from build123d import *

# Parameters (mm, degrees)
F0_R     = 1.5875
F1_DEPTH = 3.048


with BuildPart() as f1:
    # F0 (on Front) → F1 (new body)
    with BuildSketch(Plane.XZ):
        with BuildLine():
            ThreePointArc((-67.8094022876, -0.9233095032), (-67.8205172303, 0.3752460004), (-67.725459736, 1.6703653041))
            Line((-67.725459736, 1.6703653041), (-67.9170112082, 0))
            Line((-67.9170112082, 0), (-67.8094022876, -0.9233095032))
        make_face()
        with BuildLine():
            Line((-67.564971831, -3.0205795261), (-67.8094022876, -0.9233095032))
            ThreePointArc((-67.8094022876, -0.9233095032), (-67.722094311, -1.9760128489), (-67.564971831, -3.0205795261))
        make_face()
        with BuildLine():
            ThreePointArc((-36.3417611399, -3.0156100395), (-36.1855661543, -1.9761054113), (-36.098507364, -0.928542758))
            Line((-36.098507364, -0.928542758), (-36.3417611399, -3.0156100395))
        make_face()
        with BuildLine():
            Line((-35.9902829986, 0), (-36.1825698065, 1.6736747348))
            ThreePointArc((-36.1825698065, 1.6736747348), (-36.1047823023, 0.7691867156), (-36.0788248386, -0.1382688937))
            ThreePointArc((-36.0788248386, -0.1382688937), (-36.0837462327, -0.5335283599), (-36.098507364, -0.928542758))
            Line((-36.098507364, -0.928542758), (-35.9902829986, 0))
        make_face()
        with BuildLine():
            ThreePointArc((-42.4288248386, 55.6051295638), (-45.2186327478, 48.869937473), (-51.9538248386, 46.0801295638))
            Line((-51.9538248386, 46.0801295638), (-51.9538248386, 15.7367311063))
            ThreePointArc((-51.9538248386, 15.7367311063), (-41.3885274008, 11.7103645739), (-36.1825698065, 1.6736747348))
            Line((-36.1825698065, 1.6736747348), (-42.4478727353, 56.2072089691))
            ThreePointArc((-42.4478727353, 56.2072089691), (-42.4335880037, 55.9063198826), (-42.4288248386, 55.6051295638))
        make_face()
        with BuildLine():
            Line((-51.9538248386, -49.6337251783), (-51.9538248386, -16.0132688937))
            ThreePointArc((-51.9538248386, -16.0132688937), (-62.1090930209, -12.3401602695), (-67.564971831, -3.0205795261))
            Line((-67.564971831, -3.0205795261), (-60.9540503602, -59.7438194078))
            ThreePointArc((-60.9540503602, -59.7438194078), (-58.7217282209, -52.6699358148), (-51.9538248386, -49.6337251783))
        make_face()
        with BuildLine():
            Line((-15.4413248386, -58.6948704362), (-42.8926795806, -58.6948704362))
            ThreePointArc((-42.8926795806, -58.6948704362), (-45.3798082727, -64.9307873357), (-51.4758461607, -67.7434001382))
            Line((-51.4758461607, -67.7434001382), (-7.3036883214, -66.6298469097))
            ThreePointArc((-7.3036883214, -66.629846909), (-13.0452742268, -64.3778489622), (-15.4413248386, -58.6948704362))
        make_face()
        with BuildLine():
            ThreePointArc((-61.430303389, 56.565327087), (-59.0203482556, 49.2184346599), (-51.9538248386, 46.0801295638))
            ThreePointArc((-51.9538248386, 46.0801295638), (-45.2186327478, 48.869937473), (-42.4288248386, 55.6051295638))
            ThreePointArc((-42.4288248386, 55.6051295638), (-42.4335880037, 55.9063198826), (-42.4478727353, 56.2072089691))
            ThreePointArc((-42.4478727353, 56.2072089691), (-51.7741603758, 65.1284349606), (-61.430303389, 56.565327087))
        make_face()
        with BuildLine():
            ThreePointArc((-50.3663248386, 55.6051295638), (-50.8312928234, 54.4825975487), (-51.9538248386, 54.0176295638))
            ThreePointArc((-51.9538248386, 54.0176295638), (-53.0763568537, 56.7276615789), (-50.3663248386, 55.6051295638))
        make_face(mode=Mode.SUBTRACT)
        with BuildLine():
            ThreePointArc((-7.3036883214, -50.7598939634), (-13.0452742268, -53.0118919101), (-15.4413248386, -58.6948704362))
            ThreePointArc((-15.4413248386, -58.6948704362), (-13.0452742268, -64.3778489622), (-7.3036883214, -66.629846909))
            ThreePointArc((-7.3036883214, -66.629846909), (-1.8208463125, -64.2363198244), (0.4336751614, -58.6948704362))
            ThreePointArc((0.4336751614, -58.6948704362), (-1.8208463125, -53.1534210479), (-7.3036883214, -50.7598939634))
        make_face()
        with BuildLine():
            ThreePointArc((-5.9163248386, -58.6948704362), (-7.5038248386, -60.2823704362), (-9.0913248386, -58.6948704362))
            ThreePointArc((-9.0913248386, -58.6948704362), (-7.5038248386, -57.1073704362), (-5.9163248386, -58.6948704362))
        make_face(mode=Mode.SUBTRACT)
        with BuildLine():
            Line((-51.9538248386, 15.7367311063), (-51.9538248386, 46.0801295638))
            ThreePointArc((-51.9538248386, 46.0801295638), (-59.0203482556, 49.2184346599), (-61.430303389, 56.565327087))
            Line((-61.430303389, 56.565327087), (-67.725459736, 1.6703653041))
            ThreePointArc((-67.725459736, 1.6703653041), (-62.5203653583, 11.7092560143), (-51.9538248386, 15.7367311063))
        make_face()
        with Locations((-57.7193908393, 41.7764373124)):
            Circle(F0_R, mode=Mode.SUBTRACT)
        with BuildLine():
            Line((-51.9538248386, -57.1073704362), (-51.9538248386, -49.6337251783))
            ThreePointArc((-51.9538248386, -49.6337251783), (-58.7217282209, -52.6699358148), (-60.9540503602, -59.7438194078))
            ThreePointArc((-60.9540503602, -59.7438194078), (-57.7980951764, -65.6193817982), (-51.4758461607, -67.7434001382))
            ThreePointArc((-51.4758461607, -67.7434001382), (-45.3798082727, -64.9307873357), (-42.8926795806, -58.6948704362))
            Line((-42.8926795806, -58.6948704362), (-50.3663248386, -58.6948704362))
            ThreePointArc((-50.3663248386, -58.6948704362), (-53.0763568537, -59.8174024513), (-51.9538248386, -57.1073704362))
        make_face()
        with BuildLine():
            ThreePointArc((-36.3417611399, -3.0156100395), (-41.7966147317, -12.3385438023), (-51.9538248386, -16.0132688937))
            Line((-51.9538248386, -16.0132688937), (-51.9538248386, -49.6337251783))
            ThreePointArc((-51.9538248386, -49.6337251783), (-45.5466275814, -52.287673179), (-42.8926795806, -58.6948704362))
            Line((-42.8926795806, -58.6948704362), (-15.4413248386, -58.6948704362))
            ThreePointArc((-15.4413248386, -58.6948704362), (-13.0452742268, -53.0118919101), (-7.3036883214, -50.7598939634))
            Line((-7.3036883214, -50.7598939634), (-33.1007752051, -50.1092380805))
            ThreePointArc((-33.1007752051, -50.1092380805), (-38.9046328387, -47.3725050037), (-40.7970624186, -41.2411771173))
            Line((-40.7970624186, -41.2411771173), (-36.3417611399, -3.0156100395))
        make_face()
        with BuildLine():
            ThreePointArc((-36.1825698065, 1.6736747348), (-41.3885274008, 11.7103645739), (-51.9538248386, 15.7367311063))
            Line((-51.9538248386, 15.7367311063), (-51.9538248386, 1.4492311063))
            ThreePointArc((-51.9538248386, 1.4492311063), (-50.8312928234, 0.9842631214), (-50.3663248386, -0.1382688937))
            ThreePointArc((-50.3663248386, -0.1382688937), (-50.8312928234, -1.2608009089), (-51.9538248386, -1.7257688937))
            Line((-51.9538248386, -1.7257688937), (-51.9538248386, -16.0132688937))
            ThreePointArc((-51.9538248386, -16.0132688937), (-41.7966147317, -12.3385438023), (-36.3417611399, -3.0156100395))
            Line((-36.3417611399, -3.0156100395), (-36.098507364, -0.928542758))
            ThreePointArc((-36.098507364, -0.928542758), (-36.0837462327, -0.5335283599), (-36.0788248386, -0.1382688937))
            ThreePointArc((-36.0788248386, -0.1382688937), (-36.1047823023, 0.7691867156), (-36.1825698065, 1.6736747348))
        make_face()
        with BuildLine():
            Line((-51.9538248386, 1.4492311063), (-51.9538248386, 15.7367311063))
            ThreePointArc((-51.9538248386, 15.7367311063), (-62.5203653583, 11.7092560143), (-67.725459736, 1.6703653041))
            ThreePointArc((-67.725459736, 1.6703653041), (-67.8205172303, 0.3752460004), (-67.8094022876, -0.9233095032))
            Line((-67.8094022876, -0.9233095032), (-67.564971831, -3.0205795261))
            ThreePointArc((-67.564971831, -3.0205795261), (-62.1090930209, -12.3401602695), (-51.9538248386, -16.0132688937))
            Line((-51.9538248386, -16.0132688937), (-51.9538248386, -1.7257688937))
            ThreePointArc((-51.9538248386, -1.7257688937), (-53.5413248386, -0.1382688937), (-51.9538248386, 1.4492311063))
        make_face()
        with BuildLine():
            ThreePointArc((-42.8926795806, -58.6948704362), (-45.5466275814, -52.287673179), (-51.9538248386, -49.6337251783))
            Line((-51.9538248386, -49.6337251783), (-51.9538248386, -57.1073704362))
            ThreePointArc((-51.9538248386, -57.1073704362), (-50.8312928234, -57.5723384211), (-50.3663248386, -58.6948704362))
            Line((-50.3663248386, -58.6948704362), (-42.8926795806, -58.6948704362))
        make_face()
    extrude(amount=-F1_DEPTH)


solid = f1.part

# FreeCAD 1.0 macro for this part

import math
import FreeCAD as App
import Part
import Sketcher

V = App.Vector
Q = App.Units.Quantity

doc = App.newDocument("Part")
body = doc.addObject("PartDesign::Body", "Body")

# Sketch on XZ plane
sketch1 = body.newObject("Sketcher::SketchObject", "Sketch")
sketch1.AttachmentSupport = (doc.getObject("XZ_Plane"), [""])
sketch1.MapMode = "FlatFace"
sketch1.addGeometry(Part.LineSegment(V(-67.917011, 0, 0), V(-67.809402, -0.92331, 0)), False)
sketch1.addGeometry(Part.ArcOfCircle(Part.Circle(V(-51.953825, -0.138269, 0), V(0, 0, 1), 15.875), math.radians(-177.165489), math.radians(-169.539194)), False)
sketch1.addGeometry(Part.LineSegment(V(-67.564972, -3.02058, 0), V(-60.95405, -59.743819, 0)), False)
sketch1.addGeometry(Part.ArcOfCircle(Part.Circle(V(-51.953825, -58.69487, 0), V(0, 0, 1), 9.061145), math.radians(-173.352341), math.radians(-86.976224)), False)
sketch1.addGeometry(Part.LineSegment(V(-51.475846, -67.7434, 0), V(-7.303688, -66.629847, 0)), False)
sketch1.addGeometry(Part.ArcOfCircle(Part.Circle(V(-7.503825, -58.69487, 0), V(0, 0, 1), 7.9375), math.radians(-88.555188), math.radians(0)), False)
sketch1.addGeometry(Part.ArcOfCircle(Part.Circle(V(-7.503825, -58.69487, 0), V(0, 0, 1), 7.9375), math.radians(0), math.radians(88.555188)), False)
sketch1.addGeometry(Part.LineSegment(V(-7.303688, -50.759894, 0), V(-33.100775, -50.109238, 0)), False)
sketch1.addGeometry(Part.ArcOfCircle(Part.Circle(V(-32.900318, -42.161566, 0), V(0, 0, 1), 7.9502), math.radians(173.352005), math.radians(268.555188)), False)
sketch1.addGeometry(Part.LineSegment(V(-40.797062, -41.241177, 0), V(-36.341761, -3.01561, 0)), False)
sketch1.addGeometry(Part.ArcOfCircle(Part.Circle(V(-51.953825, -0.138269, 0), V(0, 0, 1), 15.875), math.radians(-10.442568), math.radians(-2.853422)), False)
sketch1.addGeometry(Part.LineSegment(V(-36.098507, -0.928543, 0), V(-35.990283, 0, 0)), False)
sketch1.addGeometry(Part.LineSegment(V(-35.990283, 0, 0), V(-36.18257, 1.673675, 0)), False)
sketch1.addGeometry(Part.LineSegment(V(-36.18257, 1.673675, 0), V(-42.447873, 56.207209, 0)), False)
sketch1.addGeometry(Part.ArcOfCircle(Part.Circle(V(-51.953825, 55.60513, 0), V(0, 0, 1), 9.525), math.radians(3.624107), math.radians(174.214291)), False)
sketch1.addGeometry(Part.LineSegment(V(-61.430303, 56.565327, 0), V(-67.917011, 0, 0)), False)
sketch1.addGeometry(Part.ArcOfCircle(Part.Circle(V(-51.953825, -0.138269, 0), V(0, 0, 1), 1.5875), math.radians(90), math.radians(270)), False)
sketch1.addGeometry(Part.ArcOfCircle(Part.Circle(V(-51.953825, -0.138269, 0), V(0, 0, 1), 1.5875), math.radians(0), math.radians(90)), False)
sketch1.addGeometry(Part.ArcOfCircle(Part.Circle(V(-51.953825, -0.138269, 0), V(0, 0, 1), 1.5875), math.radians(-90), math.radians(0)), False)
sketch1.addGeometry(Part.ArcOfCircle(Part.Circle(V(-51.953825, -58.69487, 0), V(0, 0, 1), 1.5875), math.radians(90), math.radians(360)), False)
sketch1.addGeometry(Part.ArcOfCircle(Part.Circle(V(-51.953825, -58.69487, 0), V(0, 0, 1), 1.5875), math.radians(0), math.radians(90)), False)
sketch1.addGeometry(Part.ArcOfCircle(Part.Circle(V(-51.953825, 55.60513, 0), V(0, 0, 1), 1.5875), math.radians(-90), math.radians(0)), False)
sketch1.addGeometry(Part.ArcOfCircle(Part.Circle(V(-51.953825, 55.60513, 0), V(0, 0, 1), 1.5875), math.radians(0), math.radians(270)), False)
sketch1.addGeometry(Part.Circle(V(-57.719391, 41.776437, 0), V(0, 0, 1), 1.5875), False)
sketch1.addGeometry(Part.Circle(V(-7.503825, -58.69487, 0), V(0, 0, 1), 1.5875), False)
sketch1.addConstraint(Sketcher.Constraint("Coincident", 0, 2, 1, 1))
sketch1.addConstraint(Sketcher.Constraint("Coincident", 1, 2, 2, 1))
sketch1.addConstraint(Sketcher.Constraint("Coincident", 2, 2, 3, 1))
sketch1.addConstraint(Sketcher.Constraint("Coincident", 3, 2, 4, 1))
sketch1.addConstraint(Sketcher.Constraint("Coincident", 4, 2, 5, 1))
sketch1.addConstraint(Sketcher.Constraint("Coincident", 5, 2, 6, 1))
sketch1.addConstraint(Sketcher.Constraint("Coincident", 6, 2, 7, 1))
sketch1.addConstraint(Sketcher.Constraint("Coincident", 7, 2, 8, 2))
sketch1.addConstraint(Sketcher.Constraint("Coincident", 8, 1, 9, 1))
sketch1.addConstraint(Sketcher.Constraint("Coincident", 9, 2, 10, 1))
sketch1.addConstraint(Sketcher.Constraint("Coincident", 10, 2, 11, 1))
sketch1.addConstraint(Sketcher.Constraint("Coincident", 11, 2, 12, 1))
sketch1.addConstraint(Sketcher.Constraint("Coincident", 12, 2, 13, 1))
sketch1.addConstraint(Sketcher.Constraint("Coincident", 13, 2, 14, 1))
sketch1.addConstraint(Sketcher.Constraint("Coincident", 14, 2, 15, 1))
sketch1.addConstraint(Sketcher.Constraint("Coincident", 15, 2, 0, 1))
sketch1.addConstraint(Sketcher.Constraint("Coincident", 16, 1, 17, 2))
sketch1.addConstraint(Sketcher.Constraint("Coincident", 17, 1, 18, 2))
sketch1.addConstraint(Sketcher.Constraint("Coincident", 18, 1, 16, 2))
sketch1.addConstraint(Sketcher.Constraint("Coincident", 19, 1, 20, 2))
sketch1.addConstraint(Sketcher.Constraint("Coincident", 20, 1, 19, 2))
sketch1.addConstraint(Sketcher.Constraint("Coincident", 21, 1, 22, 2))
sketch1.addConstraint(Sketcher.Constraint("Coincident", 22, 1, 21, 2))
sketch1.addConstraint(Sketcher.Constraint("Coincident", 6, 3, 5, 3))
sketch1.addConstraint(Sketcher.Constraint("Coincident", 10, 3, 1, 3))
sketch1.addConstraint(Sketcher.Constraint("Coincident", 16, 3, 1, 3))
sketch1.addConstraint(Sketcher.Constraint("Coincident", 17, 3, 1, 3))
sketch1.addConstraint(Sketcher.Constraint("Coincident", 19, 3, 3, 3))
sketch1.addConstraint(Sketcher.Constraint("Coincident", 21, 3, 14, 3))
sketch1.addConstraint(Sketcher.Constraint("Coincident", 24, 3, 5, 3))
sketch1.addConstraint(Sketcher.Constraint("PointOnObject", 11, 2, -1))
sketch1.addConstraint(Sketcher.Constraint("PointOnObject", 15, 2, -1))
sketch1.addConstraint(Sketcher.Constraint("Diameter", 23, Q("0.125 in")))
sketch1.addConstraint(Sketcher.Constraint("Diameter", 24, Q("0.125 in")))
sketch1.addConstraint(Sketcher.Constraint("Radius", 1, Q("0.625 in")))
sketch1.addConstraint(Sketcher.Constraint("Radius", 5, Q("0.3125 in")))
sketch1.addConstraint(Sketcher.Constraint("Radius", 8, Q("0.313 in")))
sketch1.addConstraint(Sketcher.Constraint("Radius", 10, Q("0.625 in")))
sketch1.addConstraint(Sketcher.Constraint("Radius", 14, Q("0.375 in")))
sketch1.addConstraint(Sketcher.Constraint("Radius", 16, Q("0.0625 in")))
sketch1.addConstraint(Sketcher.Constraint("Radius", 18, Q("0.0625 in")))
sketch1.addConstraint(Sketcher.Constraint("Radius", 19, Q("0.0625 in")))
sketch1.addConstraint(Sketcher.Constraint("Radius", 20, Q("0.0625 in")))
sketch1.addConstraint(Sketcher.Constraint("Radius", 21, Q("0.0625 in")))
sketch1.addConstraint(Sketcher.Constraint("Radius", 22, Q("0.0625 in")))
sketch1.addConstraint(Sketcher.Constraint("DistanceY", 3, 3, 14, 3, Q("4.5 in")))
sketch1.addConstraint(Sketcher.Constraint("DistanceY", 5, 3, 14, 3, Q("4.5 in")))
sketch1.addConstraint(Sketcher.Constraint("DistanceX", 3, 3, 5, 3, Q("1.75 in")))
sketch1.addConstraint(Sketcher.Constraint("DistanceX", 1, 3, 5, 3, Q("1.75 in")))
sketch1.addConstraint(Sketcher.Constraint("DistanceX", 14, 3, 5, 3, Q("1.75 in")))
sketch1.addConstraint(Sketcher.Constraint("DistanceX", 19, 1, 20, 1, Q("0.0625 in")))
sketch1.addConstraint(Sketcher.Constraint("DistanceY", 20, 1, 19, 1, Q("0.0625 in")))
sketch1.addConstraint(Sketcher.Constraint("DistanceX", 21, 1, 22, 1, Q("0.0625 in")))
sketch1.addConstraint(Sketcher.Constraint("DistanceY", 21, 1, 22, 1, Q("0.0625 in")))
sketch1.addConstraint(Sketcher.Constraint("Radius", 3, Q("9.061145 mm")))
sketch1.addConstraint(Sketcher.Constraint("DistanceY", 3, 2, -1, 1, Q("67.7434 mm")))
sketch1.addConstraint(Sketcher.Constraint("DistanceY", 3, 3, 1, 3, Q("58.556602 mm")))
sketch1.addConstraint(Sketcher.Constraint("Distance", 0, Q("0.929559 mm")))
sketch1.addConstraint(Sketcher.Constraint("Distance", 2, Q("57.107182 mm")))
sketch1.addConstraint(Sketcher.Constraint("Distance", 4, Q("44.186192 mm")))
sketch1.addConstraint(Sketcher.Constraint("Distance", 7, Q("25.805291 mm")))
sketch1.addConstraint(Sketcher.Constraint("Distance", 9, Q("38.48433 mm")))
sketch1.addConstraint(Sketcher.Constraint("Distance", 11, Q("0.934828 mm")))
sketch1.addConstraint(Sketcher.Constraint("Distance", 13, Q("54.892262 mm")))
sketch1.addConstraint(Sketcher.Constraint("Distance", 15, Q("56.936048 mm")))
sketch1.addConstraint(Sketcher.Constraint("DistanceY", 1, 3, -1, 1, Q("0.138269 mm")))
sketch1.addConstraint(Sketcher.Constraint("DistanceX", 8, 3, -1, 1, Q("32.900318 mm")))
sketch1.addConstraint(Sketcher.Constraint("DistanceX", 23, 3, -1, 1, Q("57.719391 mm")))
sketch1.addConstraint(Sketcher.Constraint("DistanceY", 0, 2, -1, 1, Q("0.92331 mm")))
sketch1.addConstraint(Sketcher.Constraint("DistanceX", 1, 2, -1, 1, Q("67.564972 mm")))
sketch1.addConstraint(Sketcher.Constraint("DistanceY", 1, 2, -1, 1, Q("3.02058 mm")))
sketch1.addConstraint(Sketcher.Constraint("DistanceY", 5, 2, -1, 1, Q("58.69487 mm")))
sketch1.addConstraint(Sketcher.Constraint("DistanceX", 6, 2, -1, 1, Q("7.303688 mm")))
sketch1.addConstraint(Sketcher.Constraint("DistanceY", 7, 2, -1, 1, Q("50.109238 mm")))
sketch1.addConstraint(Sketcher.Constraint("DistanceX", 9, 2, -1, 1, Q("36.341761 mm")))
sketch1.addConstraint(Sketcher.Constraint("DistanceX", 12, 2, -1, 1, Q("36.18257 mm")))
sketch1.addConstraint(Sketcher.Constraint("DistanceY", -1, 1, 13, 2, Q("56.207209 mm")))
sketch1.addConstraint(Sketcher.Constraint("DistanceY", 17, 1, -1, 1, Q("0.138269 mm")))
sketch1.addConstraint(Sketcher.Constraint("DistanceX", 9, 2, 11, 2, Q("0.351478 mm")))
sketch1.addConstraint(Sketcher.Constraint("DistanceY", 23, 3, 13, 2, Q("14.430772 mm")))
sketch1.addConstraint(Sketcher.Constraint("DistanceX", 16, 1, -1, 1, Q("51.953825 mm")))
sketch1.addConstraint(Sketcher.Constraint("DistanceX", 18, 1, -1, 1, Q("51.953825 mm")))
pad1 = body.newObject("PartDesign::Pad", "Pad")
pad1.Profile = sketch1
pad1.Length = Q("0.12 in")
pad1.Reversed = True

doc.recompute()
